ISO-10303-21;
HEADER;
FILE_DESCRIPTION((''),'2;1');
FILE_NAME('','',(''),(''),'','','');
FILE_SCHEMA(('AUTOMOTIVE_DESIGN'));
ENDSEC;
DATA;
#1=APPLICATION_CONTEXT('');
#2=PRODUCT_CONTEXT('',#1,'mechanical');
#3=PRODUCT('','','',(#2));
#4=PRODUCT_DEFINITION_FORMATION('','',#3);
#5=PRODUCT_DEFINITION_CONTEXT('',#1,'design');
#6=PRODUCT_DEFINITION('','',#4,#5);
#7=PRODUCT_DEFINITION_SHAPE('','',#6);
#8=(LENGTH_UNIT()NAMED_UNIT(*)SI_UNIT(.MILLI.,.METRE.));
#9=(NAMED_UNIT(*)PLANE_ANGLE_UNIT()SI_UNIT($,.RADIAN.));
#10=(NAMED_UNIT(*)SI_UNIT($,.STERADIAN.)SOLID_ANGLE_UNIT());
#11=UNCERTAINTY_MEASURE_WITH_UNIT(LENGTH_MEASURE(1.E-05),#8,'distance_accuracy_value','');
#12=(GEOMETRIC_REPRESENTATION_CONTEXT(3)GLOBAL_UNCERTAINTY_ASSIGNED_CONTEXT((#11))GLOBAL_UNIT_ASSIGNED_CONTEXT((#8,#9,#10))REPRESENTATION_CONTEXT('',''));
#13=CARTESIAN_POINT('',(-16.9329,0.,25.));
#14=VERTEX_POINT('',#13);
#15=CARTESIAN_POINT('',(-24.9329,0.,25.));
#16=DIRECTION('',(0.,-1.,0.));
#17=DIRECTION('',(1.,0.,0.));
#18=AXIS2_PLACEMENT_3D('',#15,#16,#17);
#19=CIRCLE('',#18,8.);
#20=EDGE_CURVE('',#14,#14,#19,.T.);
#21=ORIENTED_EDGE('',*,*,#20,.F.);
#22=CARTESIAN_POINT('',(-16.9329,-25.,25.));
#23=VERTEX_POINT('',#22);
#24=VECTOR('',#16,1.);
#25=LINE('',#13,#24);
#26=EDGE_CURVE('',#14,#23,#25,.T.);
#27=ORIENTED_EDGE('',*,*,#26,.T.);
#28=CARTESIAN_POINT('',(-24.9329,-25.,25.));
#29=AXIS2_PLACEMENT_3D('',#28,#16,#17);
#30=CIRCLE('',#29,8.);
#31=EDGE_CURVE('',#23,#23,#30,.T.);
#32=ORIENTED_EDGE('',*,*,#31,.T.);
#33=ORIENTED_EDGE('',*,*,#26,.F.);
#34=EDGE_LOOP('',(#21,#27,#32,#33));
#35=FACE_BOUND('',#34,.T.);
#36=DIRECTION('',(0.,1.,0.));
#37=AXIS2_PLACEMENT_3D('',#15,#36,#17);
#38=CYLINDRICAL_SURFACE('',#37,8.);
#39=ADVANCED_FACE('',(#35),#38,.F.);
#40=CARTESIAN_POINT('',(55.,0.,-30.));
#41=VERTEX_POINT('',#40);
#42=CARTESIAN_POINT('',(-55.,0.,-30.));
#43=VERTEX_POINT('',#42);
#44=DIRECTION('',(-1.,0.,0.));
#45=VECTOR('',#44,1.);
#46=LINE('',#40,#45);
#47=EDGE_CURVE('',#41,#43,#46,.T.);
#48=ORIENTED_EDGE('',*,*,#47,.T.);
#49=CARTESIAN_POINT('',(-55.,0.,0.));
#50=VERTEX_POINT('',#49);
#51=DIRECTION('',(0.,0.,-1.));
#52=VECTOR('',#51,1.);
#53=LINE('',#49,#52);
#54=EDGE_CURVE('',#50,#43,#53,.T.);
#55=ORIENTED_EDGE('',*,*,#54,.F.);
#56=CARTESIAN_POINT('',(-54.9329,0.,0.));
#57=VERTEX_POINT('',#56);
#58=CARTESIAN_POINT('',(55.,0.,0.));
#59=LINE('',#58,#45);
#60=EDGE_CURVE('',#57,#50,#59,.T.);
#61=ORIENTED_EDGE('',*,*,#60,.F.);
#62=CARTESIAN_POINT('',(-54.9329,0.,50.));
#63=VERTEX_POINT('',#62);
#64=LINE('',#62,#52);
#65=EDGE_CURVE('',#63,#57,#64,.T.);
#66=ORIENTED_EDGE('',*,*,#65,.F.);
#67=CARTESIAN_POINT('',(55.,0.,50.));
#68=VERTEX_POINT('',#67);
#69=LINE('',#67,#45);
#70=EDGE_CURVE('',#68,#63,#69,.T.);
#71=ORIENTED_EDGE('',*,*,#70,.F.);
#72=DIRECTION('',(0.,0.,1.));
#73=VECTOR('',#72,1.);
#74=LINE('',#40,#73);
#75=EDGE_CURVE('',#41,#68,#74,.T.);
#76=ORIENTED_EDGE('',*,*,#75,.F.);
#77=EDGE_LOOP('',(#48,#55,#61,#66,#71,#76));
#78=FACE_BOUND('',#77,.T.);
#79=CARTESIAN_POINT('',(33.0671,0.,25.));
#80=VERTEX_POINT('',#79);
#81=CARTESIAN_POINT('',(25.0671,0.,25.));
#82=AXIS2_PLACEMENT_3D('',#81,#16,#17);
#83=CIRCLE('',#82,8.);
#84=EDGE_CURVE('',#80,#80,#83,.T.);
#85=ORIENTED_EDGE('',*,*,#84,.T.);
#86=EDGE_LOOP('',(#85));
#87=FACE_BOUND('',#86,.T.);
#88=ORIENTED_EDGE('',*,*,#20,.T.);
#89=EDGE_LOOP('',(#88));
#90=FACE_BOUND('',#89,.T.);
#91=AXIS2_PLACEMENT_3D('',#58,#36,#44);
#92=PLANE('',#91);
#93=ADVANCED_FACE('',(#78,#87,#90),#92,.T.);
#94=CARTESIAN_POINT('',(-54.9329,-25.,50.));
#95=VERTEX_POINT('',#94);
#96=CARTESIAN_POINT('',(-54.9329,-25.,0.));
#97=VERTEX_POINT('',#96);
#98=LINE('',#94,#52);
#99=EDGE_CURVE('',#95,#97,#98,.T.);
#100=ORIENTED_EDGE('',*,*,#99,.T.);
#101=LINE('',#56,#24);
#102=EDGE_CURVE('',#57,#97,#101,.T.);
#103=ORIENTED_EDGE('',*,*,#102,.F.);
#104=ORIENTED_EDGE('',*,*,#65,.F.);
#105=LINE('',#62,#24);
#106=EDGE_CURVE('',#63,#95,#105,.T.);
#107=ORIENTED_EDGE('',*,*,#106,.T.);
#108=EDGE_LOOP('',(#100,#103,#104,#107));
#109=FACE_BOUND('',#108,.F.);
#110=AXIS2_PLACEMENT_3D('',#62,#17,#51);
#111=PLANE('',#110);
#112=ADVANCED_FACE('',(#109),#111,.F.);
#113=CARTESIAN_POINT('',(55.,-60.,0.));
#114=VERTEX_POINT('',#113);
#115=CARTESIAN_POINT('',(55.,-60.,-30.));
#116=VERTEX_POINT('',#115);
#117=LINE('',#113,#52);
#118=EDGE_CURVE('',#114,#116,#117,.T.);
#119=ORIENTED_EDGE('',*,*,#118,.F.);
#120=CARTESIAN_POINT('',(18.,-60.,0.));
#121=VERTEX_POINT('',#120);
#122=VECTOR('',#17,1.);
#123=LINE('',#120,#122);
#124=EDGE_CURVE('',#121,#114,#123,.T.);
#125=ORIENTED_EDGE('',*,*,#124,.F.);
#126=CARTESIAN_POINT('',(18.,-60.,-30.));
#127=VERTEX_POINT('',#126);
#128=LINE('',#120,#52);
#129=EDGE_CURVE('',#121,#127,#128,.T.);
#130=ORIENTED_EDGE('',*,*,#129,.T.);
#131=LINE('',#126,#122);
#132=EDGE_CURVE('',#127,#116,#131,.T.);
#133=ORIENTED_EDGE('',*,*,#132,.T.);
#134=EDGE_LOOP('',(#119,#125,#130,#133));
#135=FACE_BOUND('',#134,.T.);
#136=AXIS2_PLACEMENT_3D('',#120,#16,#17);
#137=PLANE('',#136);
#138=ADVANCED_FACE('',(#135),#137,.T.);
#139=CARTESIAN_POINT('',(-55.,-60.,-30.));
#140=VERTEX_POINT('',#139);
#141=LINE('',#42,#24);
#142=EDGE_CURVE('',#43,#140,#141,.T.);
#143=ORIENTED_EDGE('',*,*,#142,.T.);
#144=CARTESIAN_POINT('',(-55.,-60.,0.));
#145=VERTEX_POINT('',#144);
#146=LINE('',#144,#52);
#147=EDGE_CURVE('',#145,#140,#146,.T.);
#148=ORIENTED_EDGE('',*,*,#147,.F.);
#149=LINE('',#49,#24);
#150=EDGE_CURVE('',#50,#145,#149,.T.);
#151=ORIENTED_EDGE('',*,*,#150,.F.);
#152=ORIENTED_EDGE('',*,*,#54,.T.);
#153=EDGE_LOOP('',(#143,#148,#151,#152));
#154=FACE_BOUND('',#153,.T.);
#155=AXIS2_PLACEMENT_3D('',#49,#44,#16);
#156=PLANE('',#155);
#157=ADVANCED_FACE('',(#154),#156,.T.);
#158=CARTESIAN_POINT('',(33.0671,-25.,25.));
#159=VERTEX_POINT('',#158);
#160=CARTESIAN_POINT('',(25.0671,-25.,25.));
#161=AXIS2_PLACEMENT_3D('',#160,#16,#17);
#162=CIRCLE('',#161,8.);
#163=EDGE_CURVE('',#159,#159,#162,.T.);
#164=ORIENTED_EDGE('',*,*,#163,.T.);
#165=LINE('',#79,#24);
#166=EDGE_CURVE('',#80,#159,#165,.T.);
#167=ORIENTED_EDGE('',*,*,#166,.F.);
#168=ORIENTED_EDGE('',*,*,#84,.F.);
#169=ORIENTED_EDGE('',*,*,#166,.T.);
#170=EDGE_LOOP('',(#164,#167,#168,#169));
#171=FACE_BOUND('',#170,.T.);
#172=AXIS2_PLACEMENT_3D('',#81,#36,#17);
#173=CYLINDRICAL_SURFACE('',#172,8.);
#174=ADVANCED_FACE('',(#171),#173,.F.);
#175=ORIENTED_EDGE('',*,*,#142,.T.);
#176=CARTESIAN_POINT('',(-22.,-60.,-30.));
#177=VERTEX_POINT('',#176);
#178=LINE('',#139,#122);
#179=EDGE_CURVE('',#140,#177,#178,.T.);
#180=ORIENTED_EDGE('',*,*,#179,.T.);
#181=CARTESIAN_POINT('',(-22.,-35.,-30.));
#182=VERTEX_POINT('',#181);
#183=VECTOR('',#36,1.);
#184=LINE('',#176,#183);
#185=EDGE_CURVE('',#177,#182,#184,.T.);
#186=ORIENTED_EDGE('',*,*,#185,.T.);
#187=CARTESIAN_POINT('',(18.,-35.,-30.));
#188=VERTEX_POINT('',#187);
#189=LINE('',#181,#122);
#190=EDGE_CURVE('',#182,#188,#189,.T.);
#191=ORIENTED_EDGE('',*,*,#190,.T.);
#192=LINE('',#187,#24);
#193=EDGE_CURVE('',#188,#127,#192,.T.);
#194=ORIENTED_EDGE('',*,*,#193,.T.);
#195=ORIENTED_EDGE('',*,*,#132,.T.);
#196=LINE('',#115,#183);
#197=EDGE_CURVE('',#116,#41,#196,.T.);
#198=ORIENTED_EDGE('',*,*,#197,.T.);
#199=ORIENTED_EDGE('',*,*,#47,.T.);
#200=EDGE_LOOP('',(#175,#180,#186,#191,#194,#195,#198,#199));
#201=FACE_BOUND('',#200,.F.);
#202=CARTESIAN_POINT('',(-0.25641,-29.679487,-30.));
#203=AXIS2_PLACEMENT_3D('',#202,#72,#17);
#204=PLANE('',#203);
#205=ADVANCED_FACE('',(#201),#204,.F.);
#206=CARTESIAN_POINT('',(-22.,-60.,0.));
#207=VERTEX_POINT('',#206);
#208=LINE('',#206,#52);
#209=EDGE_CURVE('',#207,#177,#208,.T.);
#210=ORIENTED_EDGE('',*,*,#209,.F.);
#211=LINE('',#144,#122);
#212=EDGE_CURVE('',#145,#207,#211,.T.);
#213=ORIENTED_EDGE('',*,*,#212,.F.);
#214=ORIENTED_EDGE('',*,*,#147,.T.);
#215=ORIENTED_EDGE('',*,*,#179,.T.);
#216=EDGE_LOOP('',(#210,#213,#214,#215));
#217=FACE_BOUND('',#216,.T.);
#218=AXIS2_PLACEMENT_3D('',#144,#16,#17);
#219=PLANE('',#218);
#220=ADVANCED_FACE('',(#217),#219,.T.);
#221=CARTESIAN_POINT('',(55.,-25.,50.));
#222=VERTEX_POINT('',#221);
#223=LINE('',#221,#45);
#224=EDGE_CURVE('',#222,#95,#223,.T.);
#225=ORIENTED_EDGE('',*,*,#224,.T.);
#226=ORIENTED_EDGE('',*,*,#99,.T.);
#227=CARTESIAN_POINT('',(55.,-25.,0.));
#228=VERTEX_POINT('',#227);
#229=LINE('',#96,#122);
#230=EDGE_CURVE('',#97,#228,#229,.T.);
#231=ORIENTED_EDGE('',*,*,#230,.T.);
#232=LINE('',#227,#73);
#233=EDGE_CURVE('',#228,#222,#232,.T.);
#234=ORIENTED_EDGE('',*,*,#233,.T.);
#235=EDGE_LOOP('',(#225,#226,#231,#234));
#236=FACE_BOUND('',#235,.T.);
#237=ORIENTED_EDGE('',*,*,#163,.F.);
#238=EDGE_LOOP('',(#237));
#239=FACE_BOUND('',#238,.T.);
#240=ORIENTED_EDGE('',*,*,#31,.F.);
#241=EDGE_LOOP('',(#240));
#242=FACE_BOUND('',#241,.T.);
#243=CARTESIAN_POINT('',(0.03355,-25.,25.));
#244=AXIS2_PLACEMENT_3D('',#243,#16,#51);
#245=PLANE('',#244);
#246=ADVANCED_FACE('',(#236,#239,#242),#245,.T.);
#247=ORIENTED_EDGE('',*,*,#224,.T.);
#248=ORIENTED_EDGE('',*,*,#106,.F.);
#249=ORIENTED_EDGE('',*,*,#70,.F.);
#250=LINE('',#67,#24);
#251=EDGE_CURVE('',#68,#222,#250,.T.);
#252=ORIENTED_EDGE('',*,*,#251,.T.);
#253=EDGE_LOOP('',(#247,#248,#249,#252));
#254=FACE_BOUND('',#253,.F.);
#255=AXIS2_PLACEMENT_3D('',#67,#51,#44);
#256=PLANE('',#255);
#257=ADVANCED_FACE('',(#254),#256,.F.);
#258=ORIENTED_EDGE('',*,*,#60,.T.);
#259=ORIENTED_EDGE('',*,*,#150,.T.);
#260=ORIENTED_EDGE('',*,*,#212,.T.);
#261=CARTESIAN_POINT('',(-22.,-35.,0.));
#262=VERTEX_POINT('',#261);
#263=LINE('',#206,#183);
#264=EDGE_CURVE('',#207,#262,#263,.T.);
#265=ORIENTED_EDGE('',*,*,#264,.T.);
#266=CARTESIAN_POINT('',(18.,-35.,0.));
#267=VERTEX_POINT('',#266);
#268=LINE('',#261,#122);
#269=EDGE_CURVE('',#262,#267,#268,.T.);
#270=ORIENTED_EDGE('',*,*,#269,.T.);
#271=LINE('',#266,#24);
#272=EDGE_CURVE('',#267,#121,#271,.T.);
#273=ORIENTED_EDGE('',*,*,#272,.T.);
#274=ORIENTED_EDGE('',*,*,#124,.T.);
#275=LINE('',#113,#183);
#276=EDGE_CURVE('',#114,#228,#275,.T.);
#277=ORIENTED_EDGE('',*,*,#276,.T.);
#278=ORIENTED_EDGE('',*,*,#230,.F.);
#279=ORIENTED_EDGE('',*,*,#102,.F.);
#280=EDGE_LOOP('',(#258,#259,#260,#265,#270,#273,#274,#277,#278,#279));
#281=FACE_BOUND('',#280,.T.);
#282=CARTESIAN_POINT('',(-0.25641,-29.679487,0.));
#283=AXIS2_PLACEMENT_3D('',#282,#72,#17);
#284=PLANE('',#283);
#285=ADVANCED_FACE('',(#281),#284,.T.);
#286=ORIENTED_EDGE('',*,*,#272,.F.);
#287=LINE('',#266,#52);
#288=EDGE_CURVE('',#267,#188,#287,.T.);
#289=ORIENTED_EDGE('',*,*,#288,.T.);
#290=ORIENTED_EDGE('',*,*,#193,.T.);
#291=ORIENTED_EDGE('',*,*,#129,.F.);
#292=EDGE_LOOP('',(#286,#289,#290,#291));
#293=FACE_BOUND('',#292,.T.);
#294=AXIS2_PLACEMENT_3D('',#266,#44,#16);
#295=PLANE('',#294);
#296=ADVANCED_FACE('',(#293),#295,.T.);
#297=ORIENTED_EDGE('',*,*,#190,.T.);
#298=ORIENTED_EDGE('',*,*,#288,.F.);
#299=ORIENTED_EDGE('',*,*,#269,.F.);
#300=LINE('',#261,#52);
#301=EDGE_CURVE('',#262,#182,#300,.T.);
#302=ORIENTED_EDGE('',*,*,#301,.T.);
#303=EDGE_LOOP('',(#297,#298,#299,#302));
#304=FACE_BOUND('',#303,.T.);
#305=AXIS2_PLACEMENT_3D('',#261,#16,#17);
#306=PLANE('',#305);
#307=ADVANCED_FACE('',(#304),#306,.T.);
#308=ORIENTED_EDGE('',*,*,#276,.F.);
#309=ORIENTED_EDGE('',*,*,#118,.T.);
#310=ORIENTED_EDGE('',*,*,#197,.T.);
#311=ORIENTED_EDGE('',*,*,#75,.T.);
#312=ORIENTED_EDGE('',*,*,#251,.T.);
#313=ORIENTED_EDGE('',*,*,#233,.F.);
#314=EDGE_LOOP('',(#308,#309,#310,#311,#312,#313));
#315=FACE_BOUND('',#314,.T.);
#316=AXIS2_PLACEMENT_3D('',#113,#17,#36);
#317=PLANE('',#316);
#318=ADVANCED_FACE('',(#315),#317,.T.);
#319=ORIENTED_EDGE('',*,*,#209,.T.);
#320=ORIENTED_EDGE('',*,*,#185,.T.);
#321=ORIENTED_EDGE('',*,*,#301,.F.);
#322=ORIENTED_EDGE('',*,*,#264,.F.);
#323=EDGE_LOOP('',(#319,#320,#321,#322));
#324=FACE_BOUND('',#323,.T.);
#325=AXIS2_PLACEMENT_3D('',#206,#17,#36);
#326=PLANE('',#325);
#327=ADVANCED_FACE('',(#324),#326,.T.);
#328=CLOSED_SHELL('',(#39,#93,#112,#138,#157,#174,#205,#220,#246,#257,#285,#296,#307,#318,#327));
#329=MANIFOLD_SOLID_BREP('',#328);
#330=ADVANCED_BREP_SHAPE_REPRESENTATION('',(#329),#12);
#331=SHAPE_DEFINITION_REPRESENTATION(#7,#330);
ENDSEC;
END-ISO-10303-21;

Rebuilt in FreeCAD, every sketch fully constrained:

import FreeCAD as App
import Part
import Sketcher
from FreeCAD import Vector

doc = App.newDocument("Part")
body = doc.addObject("PartDesign::Body", "Body")

# Sketch on XY plane
sketch1 = body.newObject("Sketcher::SketchObject", "Sketch")
sketch1.AttachmentSupport = (doc.getObject("XY_Plane"), [""])
sketch1.MapMode = "FlatFace"
sketch1.addGeometry(Part.LineSegment(Vector(18, -60, 0), Vector(55, -60, 0)), False)
sketch1.addGeometry(Part.LineSegment(Vector(55, -60, 0), Vector(55, 0, 0)), False)
sketch1.addGeometry(Part.LineSegment(Vector(55, 0, 0), Vector(-55, 0, 0)), False)
sketch1.addGeometry(Part.LineSegment(Vector(-55, 0, 0), Vector(-55, -60, 0)), False)
sketch1.addGeometry(Part.LineSegment(Vector(-55, -60, 0), Vector(-22, -60, 0)), False)
sketch1.addGeometry(Part.LineSegment(Vector(-22, -60, 0), Vector(-22, -35, 0)), False)
sketch1.addGeometry(Part.LineSegment(Vector(-22, -35, 0), Vector(18, -35, 0)), False)
sketch1.addGeometry(Part.LineSegment(Vector(18, -35, 0), Vector(18, -60, 0)), False)
sketch1.addConstraint(Sketcher.Constraint("Coincident", 0, 2, 1, 1))
sketch1.addConstraint(Sketcher.Constraint("Coincident", 1, 2, 2, 1))
sketch1.addConstraint(Sketcher.Constraint("Coincident", 2, 2, 3, 1))
sketch1.addConstraint(Sketcher.Constraint("Coincident", 3, 2, 4, 1))
sketch1.addConstraint(Sketcher.Constraint("Coincident", 4, 2, 5, 1))
sketch1.addConstraint(Sketcher.Constraint("Coincident", 5, 2, 6, 1))
sketch1.addConstraint(Sketcher.Constraint("Coincident", 6, 2, 7, 1))
sketch1.addConstraint(Sketcher.Constraint("Coincident", 7, 2, 0, 1))
sketch1.addConstraint(Sketcher.Constraint("Horizontal", 0))
sketch1.addConstraint(Sketcher.Constraint("Vertical", 1))
sketch1.addConstraint(Sketcher.Constraint("Horizontal", 2))
sketch1.addConstraint(Sketcher.Constraint("Vertical", 3))
sketch1.addConstraint(Sketcher.Constraint("Horizontal", 4))
sketch1.addConstraint(Sketcher.Constraint("Vertical", 5))
sketch1.addConstraint(Sketcher.Constraint("Horizontal", 6))
sketch1.addConstraint(Sketcher.Constraint("Vertical", 7))
sketch1.addConstraint(Sketcher.Constraint("Symmetric", 1, 2, 2, 2, -1, 1))
sketch1.addConstraint(Sketcher.Constraint("Horizontal", 0, 2, 3, 2))
sketch1.addConstraint(Sketcher.Constraint("DistanceX", 0, 1, 0, 2, 37.0))
sketch1.addConstraint(Sketcher.Constraint("DistanceX", 2, 2, 2, 1, 110.0))
sketch1.addConstraint(Sketcher.Constraint("DistanceX", 4, 1, 4, 2, 33.0))
sketch1.addConstraint(Sketcher.Constraint("DistanceY", 1, 1, 1, 2, 60.0))
sketch1.addConstraint(Sketcher.Constraint("DistanceY", 5, 1, 5, 2, 25.0))
pad1 = body.newObject("PartDesign::Pad", "Pad")
pad1.Profile = sketch1
pad1.Length = 30
pad1.Reversed = True

# Sketch on XZ plane
sketch2 = body.newObject("Sketcher::SketchObject", "Sketch001")
sketch2.AttachmentSupport = (doc.getObject("XZ_Plane"), [""])
sketch2.MapMode = "FlatFace"
sketch2.addGeometry(Part.LineSegment(Vector(-55, 50, 0), Vector(-55, 0, 0)), False)
sketch2.addGeometry(Part.LineSegment(Vector(-55, 0, 0), Vector(55, 0, 0)), False)
sketch2.addGeometry(Part.LineSegment(Vector(55, 0, 0), Vector(55, 50, 0)), False)
sketch2.addGeometry(Part.LineSegment(Vector(55, 50, 0), Vector(-55, 50, 0)), False)
sketch2.addGeometry(Part.Circle(Vector(-25, 25, 0), Vector(0, 0, 1), 8), False)
sketch2.addGeometry(Part.Circle(Vector(25, 25, 0), Vector(0, 0, 1), 8), False)
sketch2.addConstraint(Sketcher.Constraint("Coincident", 0, 2, 1, 1))
sketch2.addConstraint(Sketcher.Constraint("Coincident", 1, 2, 2, 1))
sketch2.addConstraint(Sketcher.Constraint("Coincident", 2, 2, 3, 1))
sketch2.addConstraint(Sketcher.Constraint("Coincident", 3, 2, 0, 1))
sketch2.addConstraint(Sketcher.Constraint("Vertical", 0))
sketch2.addConstraint(Sketcher.Constraint("Horizontal", 1))
sketch2.addConstraint(Sketcher.Constraint("Vertical", 2))
sketch2.addConstraint(Sketcher.Constraint("Horizontal", 3))
sketch2.addConstraint(Sketcher.Constraint("Equal", 4, 5))
sketch2.addConstraint(Sketcher.Constraint("PointOnObject", 0, 2, -1))
sketch2.addConstraint(Sketcher.Constraint("Horizontal", 4, 3, 5, 3))
sketch2.addConstraint(Sketcher.Constraint("Diameter", 4, 16.0))
sketch2.addConstraint(Sketcher.Constraint("DistanceY", 0, 2, 0, 1, 50.0))
sketch2.addConstraint(Sketcher.Constraint("DistanceY", -1, 1, 4, 3, 25.0))
sketch2.addConstraint(Sketcher.Constraint("DistanceX", -1, 1, 1, 2, 55.0))
sketch2.addConstraint(Sketcher.Constraint("DistanceX", 4, 3, 5, 3, 50.0))
sketch2.addConstraint(Sketcher.Constraint("DistanceX", 0, 2, 4, 3, 30.0))
sketch2.addConstraint(Sketcher.Constraint("DistanceX", 1, 1, 1, 2, 109.933))
pad2 = body.newObject("PartDesign::Pad", "Pad001")
pad2.Profile = sketch2
pad2.Length = 25

doc.recompute()
